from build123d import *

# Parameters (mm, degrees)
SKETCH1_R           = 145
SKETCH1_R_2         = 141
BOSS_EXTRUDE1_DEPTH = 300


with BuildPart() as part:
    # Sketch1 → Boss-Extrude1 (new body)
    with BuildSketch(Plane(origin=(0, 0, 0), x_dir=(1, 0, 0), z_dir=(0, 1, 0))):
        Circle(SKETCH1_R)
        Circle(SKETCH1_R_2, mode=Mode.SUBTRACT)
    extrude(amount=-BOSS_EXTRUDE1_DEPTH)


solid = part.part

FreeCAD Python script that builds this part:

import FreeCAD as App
import Part
import Sketcher
from FreeCAD import Vector

doc = App.newDocument("Part")
body = doc.addObject("PartDesign::Body", "Body")

sketch1 = doc.addObject("Sketcher::SketchObject", "Sketch")
body.addObject(sketch1)
sketch1.AttachmentSupport = (doc.XZ_Plane, [""])
sketch1.MapMode = "FlatFace"
sketch1.addGeometry(Part.Circle(Vector(0, 0, 0), Vector(0, 0, 1), 145), False)
sketch1.addGeometry(Part.Circle(Vector(0, 0, 0), Vector(0, 0, 1), 141), False)
sketch1.addConstraint(Sketcher.Constraint("Coincident", 0, 3, -1, 1))
sketch1.addConstraint(Sketcher.Constraint("Coincident", 1, 3, -1, 1))
sketch1.addConstraint(Sketcher.Constraint("Diameter", 0, 290.0))
sketch1.addConstraint(Sketcher.Constraint("Diameter", 1, 282.0))
pad1 = doc.addObject("PartDesign::Pad", "Pad")
body.addObject(pad1)
pad1.Profile = sketch1
pad1.Length = 300

doc.recompute()
